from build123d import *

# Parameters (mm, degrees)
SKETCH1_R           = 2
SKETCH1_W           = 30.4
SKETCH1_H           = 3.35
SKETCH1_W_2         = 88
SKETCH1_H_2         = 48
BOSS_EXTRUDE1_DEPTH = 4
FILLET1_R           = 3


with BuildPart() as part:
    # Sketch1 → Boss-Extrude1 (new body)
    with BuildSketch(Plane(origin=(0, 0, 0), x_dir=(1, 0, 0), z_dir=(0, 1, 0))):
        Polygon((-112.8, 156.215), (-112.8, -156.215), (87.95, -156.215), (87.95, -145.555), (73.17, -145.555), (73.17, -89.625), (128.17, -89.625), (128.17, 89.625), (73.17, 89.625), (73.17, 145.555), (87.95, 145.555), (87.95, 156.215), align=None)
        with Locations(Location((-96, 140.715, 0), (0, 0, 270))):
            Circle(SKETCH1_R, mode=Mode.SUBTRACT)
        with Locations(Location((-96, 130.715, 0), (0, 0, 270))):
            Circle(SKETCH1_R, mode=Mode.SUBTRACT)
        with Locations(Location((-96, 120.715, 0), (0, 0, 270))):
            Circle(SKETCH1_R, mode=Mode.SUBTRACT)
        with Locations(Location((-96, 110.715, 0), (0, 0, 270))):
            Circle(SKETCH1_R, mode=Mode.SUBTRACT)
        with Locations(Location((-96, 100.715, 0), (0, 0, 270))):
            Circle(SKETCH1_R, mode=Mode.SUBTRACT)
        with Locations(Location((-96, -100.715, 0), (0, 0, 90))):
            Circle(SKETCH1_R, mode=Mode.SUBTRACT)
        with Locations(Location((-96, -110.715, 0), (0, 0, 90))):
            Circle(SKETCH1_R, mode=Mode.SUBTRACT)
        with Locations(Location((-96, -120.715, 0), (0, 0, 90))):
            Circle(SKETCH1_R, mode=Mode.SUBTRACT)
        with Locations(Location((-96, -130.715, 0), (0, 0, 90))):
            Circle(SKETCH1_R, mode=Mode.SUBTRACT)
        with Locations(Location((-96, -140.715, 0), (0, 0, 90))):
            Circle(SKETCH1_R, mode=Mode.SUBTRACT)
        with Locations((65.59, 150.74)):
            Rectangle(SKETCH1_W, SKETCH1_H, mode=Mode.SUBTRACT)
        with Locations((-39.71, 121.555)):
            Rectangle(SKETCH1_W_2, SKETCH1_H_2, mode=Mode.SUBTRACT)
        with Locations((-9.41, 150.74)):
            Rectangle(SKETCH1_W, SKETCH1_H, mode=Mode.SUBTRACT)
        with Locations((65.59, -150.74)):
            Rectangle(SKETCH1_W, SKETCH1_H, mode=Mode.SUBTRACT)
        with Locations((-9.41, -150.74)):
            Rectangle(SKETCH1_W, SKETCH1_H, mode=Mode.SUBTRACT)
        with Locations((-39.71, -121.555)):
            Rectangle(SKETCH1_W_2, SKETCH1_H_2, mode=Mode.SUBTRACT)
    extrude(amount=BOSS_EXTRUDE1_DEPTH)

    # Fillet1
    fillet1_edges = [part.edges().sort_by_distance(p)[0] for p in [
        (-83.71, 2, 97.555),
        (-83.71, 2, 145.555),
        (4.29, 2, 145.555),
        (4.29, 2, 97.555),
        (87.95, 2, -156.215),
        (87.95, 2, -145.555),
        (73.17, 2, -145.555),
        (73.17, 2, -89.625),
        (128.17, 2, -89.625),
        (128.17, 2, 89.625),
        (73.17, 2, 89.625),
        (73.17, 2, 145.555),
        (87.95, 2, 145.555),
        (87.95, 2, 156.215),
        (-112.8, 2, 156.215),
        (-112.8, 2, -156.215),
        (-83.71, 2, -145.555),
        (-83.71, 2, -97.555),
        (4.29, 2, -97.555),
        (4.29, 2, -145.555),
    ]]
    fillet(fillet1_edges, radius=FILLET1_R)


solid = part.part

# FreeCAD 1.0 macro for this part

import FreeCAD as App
import Part
import Sketcher
Q = App.Units.Quantity


def edges_at(feature, points):
    """Names of the edges that pass closest to the given points."""
    edges = feature.Shape.Edges
    near = lambda p: min(range(len(edges)), key=lambda i: edges[i].distToShape(Part.Vertex(*p))[0])
    return sorted({f"Edge{near(p) + 1}" for p in points})

doc = App.newDocument("Part")
body = doc.addObject("PartDesign::Body", "Body")

sketch1 = body.newObject("Sketcher::SketchObject", "Sketch")
sketch1.AttachmentSupport = (doc.getObject("XZ_Plane"), [""])
sketch1.MapMode = "FlatFace"
sketch1.addGeometry(Part.LineSegment(App.Vector(-112.8, -156.2, 0), App.Vector(-112.8, 156.2, 0)), False)
sketch1.addGeometry(Part.LineSegment(App.Vector(-112.8, 156.2, 0), App.Vector(88, 156.2, 0)), False)
sketch1.addGeometry(Part.LineSegment(App.Vector(88, 156.2, 0), App.Vector(88, 145.6, 0)), False)
sketch1.addGeometry(Part.LineSegment(App.Vector(88, 145.6, 0), App.Vector(73.2, 145.6, 0)), False)
sketch1.addGeometry(Part.LineSegment(App.Vector(73.2, 145.6, 0), App.Vector(73.2, 89.6, 0)), False)
sketch1.addGeometry(Part.LineSegment(App.Vector(73.2, 89.6, 0), App.Vector(128.2, 89.6, 0)), False)
sketch1.addGeometry(Part.LineSegment(App.Vector(128.2, 89.6, 0), App.Vector(128.2, -89.6, 0)), False)
sketch1.addGeometry(Part.LineSegment(App.Vector(128.2, -89.6, 0), App.Vector(73.2, -89.6, 0)), False)
sketch1.addGeometry(Part.LineSegment(App.Vector(73.2, -89.6, 0), App.Vector(73.2, -145.6, 0)), False)
sketch1.addGeometry(Part.LineSegment(App.Vector(73.2, -145.6, 0), App.Vector(88, -145.6, 0)), False)
sketch1.addGeometry(Part.LineSegment(App.Vector(88, -145.6, 0), App.Vector(88, -156.2, 0)), False)
sketch1.addGeometry(Part.LineSegment(App.Vector(88, -156.2, 0), App.Vector(-112.8, -156.2, 0)), False)
sketch1.addGeometry(Part.Circle(App.Vector(-96, 140.7, 0), App.Vector(0, 0, 1), 2), False)
sketch1.addGeometry(Part.Circle(App.Vector(-96, 130.7, 0), App.Vector(0, 0, 1), 2), False)
sketch1.addGeometry(Part.Circle(App.Vector(-96, 120.7, 0), App.Vector(0, 0, 1), 2), False)
sketch1.addGeometry(Part.Circle(App.Vector(-96, 110.7, 0), App.Vector(0, 0, 1), 2), False)
sketch1.addGeometry(Part.Circle(App.Vector(-96, 100.7, 0), App.Vector(0, 0, 1), 2), False)
sketch1.addGeometry(Part.LineSegment(App.Vector(4.3, 145.6, 0), App.Vector(-83.7, 145.6, 0)), False)
sketch1.addGeometry(Part.LineSegment(App.Vector(-83.7, 145.6, 0), App.Vector(-83.7, 97.6, 0)), False)
sketch1.addGeometry(Part.LineSegment(App.Vector(-83.7, 97.6, 0), App.Vector(4.3, 97.6, 0)), False)
sketch1.addGeometry(Part.LineSegment(App.Vector(4.3, 97.6, 0), App.Vector(4.3, 145.6, 0)), False)
sketch1.addGeometry(Part.LineSegment(App.Vector(5.8, 152.4, 0), App.Vector(-24.6, 152.4, 0)), False)
sketch1.addGeometry(Part.LineSegment(App.Vector(-24.6, 152.4, 0), App.Vector(-24.6, 149.1, 0)), False)
sketch1.addGeometry(Part.LineSegment(App.Vector(-24.6, 149.1, 0), App.Vector(5.8, 149.1, 0)), False)
sketch1.addGeometry(Part.LineSegment(App.Vector(5.8, 149.1, 0), App.Vector(5.8, 152.4, 0)), False)
sketch1.addGeometry(Part.LineSegment(App.Vector(80.8, 152.4, 0), App.Vector(50.4, 152.4, 0)), False)
sketch1.addGeometry(Part.LineSegment(App.Vector(50.4, 152.4, 0), App.Vector(50.4, 149.1, 0)), False)
sketch1.addGeometry(Part.LineSegment(App.Vector(50.4, 149.1, 0), App.Vector(80.8, 149.1, 0)), False)
sketch1.addGeometry(Part.LineSegment(App.Vector(80.8, 149.1, 0), App.Vector(80.8, 152.4, 0)), False)
sketch1.addGeometry(Part.Circle(App.Vector(-96, -100.7, 0), App.Vector(0, 0, 1), 2), False)
sketch1.addGeometry(Part.Circle(App.Vector(-96, -110.7, 0), App.Vector(0, 0, 1), 2), False)
sketch1.addGeometry(Part.Circle(App.Vector(-96, -120.7, 0), App.Vector(0, 0, 1), 2), False)
sketch1.addGeometry(Part.Circle(App.Vector(-96, -130.7, 0), App.Vector(0, 0, 1), 2), False)
sketch1.addGeometry(Part.Circle(App.Vector(-96, -140.7, 0), App.Vector(0, 0, 1), 2), False)
sketch1.addGeometry(Part.LineSegment(App.Vector(4.3, -97.6, 0), App.Vector(-83.7, -97.6, 0)), False)
sketch1.addGeometry(Part.LineSegment(App.Vector(-83.7, -97.6, 0), App.Vector(-83.7, -145.6, 0)), False)
sketch1.addGeometry(Part.LineSegment(App.Vector(-83.7, -145.6, 0), App.Vector(4.3, -145.6, 0)), False)
sketch1.addGeometry(Part.LineSegment(App.Vector(4.3, -145.6, 0), App.Vector(4.3, -97.6, 0)), False)
sketch1.addGeometry(Part.LineSegment(App.Vector(5.8, -149.1, 0), App.Vector(-24.6, -149.1, 0)), False)
sketch1.addGeometry(Part.LineSegment(App.Vector(-24.6, -149.1, 0), App.Vector(-24.6, -152.4, 0)), False)
sketch1.addGeometry(Part.LineSegment(App.Vector(-24.6, -152.4, 0), App.Vector(5.8, -152.4, 0)), False)
sketch1.addGeometry(Part.LineSegment(App.Vector(5.8, -152.4, 0), App.Vector(5.8, -149.1, 0)), False)
sketch1.addGeometry(Part.LineSegment(App.Vector(80.8, -149.1, 0), App.Vector(50.4, -149.1, 0)), False)
sketch1.addGeometry(Part.LineSegment(App.Vector(50.4, -149.1, 0), App.Vector(50.4, -152.4, 0)), False)
sketch1.addGeometry(Part.LineSegment(App.Vector(50.4, -152.4, 0), App.Vector(80.8, -152.4, 0)), False)
sketch1.addGeometry(Part.LineSegment(App.Vector(80.8, -152.4, 0), App.Vector(80.8, -149.1, 0)), False)
sketch1.addConstraint(Sketcher.Constraint("Coincident", 0, 2, 1, 1))
sketch1.addConstraint(Sketcher.Constraint("Coincident", 1, 2, 2, 1))
sketch1.addConstraint(Sketcher.Constraint("Coincident", 2, 2, 3, 1))
sketch1.addConstraint(Sketcher.Constraint("Coincident", 3, 2, 4, 1))
sketch1.addConstraint(Sketcher.Constraint("Coincident", 4, 2, 5, 1))
sketch1.addConstraint(Sketcher.Constraint("Coincident", 5, 2, 6, 1))
sketch1.addConstraint(Sketcher.Constraint("Coincident", 6, 2, 7, 1))
sketch1.addConstraint(Sketcher.Constraint("Coincident", 7, 2, 8, 1))
sketch1.addConstraint(Sketcher.Constraint("Coincident", 8, 2, 9, 1))
sketch1.addConstraint(Sketcher.Constraint("Coincident", 9, 2, 10, 1))
sketch1.addConstraint(Sketcher.Constraint("Coincident", 10, 2, 11, 1))
sketch1.addConstraint(Sketcher.Constraint("Coincident", 11, 2, 0, 1))
sketch1.addConstraint(Sketcher.Constraint("Coincident", 17, 2, 18, 1))
sketch1.addConstraint(Sketcher.Constraint("Coincident", 18, 2, 19, 1))
sketch1.addConstraint(Sketcher.Constraint("Coincident", 19, 2, 20, 1))
sketch1.addConstraint(Sketcher.Constraint("Coincident", 20, 2, 17, 1))
sketch1.addConstraint(Sketcher.Constraint("Coincident", 21, 2, 22, 1))
sketch1.addConstraint(Sketcher.Constraint("Coincident", 22, 2, 23, 1))
sketch1.addConstraint(Sketcher.Constraint("Coincident", 23, 2, 24, 1))
sketch1.addConstraint(Sketcher.Constraint("Coincident", 24, 2, 21, 1))
sketch1.addConstraint(Sketcher.Constraint("Coincident", 25, 2, 26, 1))
sketch1.addConstraint(Sketcher.Constraint("Coincident", 26, 2, 27, 1))
sketch1.addConstraint(Sketcher.Constraint("Coincident", 27, 2, 28, 1))
sketch1.addConstraint(Sketcher.Constraint("Coincident", 28, 2, 25, 1))
sketch1.addConstraint(Sketcher.Constraint("Coincident", 34, 2, 35, 1))
sketch1.addConstraint(Sketcher.Constraint("Coincident", 35, 2, 36, 1))
sketch1.addConstraint(Sketcher.Constraint("Coincident", 36, 2, 37, 1))
sketch1.addConstraint(Sketcher.Constraint("Coincident", 37, 2, 34, 1))
sketch1.addConstraint(Sketcher.Constraint("Coincident", 38, 2, 39, 1))
sketch1.addConstraint(Sketcher.Constraint("Coincident", 39, 2, 40, 1))
sketch1.addConstraint(Sketcher.Constraint("Coincident", 40, 2, 41, 1))
sketch1.addConstraint(Sketcher.Constraint("Coincident", 41, 2, 38, 1))
sketch1.addConstraint(Sketcher.Constraint("Coincident", 42, 2, 43, 1))
sketch1.addConstraint(Sketcher.Constraint("Coincident", 43, 2, 44, 1))
sketch1.addConstraint(Sketcher.Constraint("Coincident", 44, 2, 45, 1))
sketch1.addConstraint(Sketcher.Constraint("Coincident", 45, 2, 42, 1))
sketch1.addConstraint(Sketcher.Constraint("Vertical", 0))
sketch1.addConstraint(Sketcher.Constraint("Horizontal", 1))
sketch1.addConstraint(Sketcher.Constraint("Vertical", 2))
sketch1.addConstraint(Sketcher.Constraint("Horizontal", 3))
sketch1.addConstraint(Sketcher.Constraint("Vertical", 4))
sketch1.addConstraint(Sketcher.Constraint("Horizontal", 5))
sketch1.addConstraint(Sketcher.Constraint("Vertical", 6))
sketch1.addConstraint(Sketcher.Constraint("Horizontal", 7))
sketch1.addConstraint(Sketcher.Constraint("Vertical", 8))
sketch1.addConstraint(Sketcher.Constraint("Horizontal", 9))
sketch1.addConstraint(Sketcher.Constraint("Vertical", 10))
sketch1.addConstraint(Sketcher.Constraint("Horizontal", 11))
sketch1.addConstraint(Sketcher.Constraint("Horizontal", 17))
sketch1.addConstraint(Sketcher.Constraint("Vertical", 18))
sketch1.addConstraint(Sketcher.Constraint("Horizontal", 19))
sketch1.addConstraint(Sketcher.Constraint("Vertical", 20))
sketch1.addConstraint(Sketcher.Constraint("Horizontal", 21))
sketch1.addConstraint(Sketcher.Constraint("Vertical", 22))
sketch1.addConstraint(Sketcher.Constraint("Horizontal", 23))
sketch1.addConstraint(Sketcher.Constraint("Vertical", 24))
sketch1.addConstraint(Sketcher.Constraint("Horizontal", 25))
sketch1.addConstraint(Sketcher.Constraint("Vertical", 26))
sketch1.addConstraint(Sketcher.Constraint("Horizontal", 27))
sketch1.addConstraint(Sketcher.Constraint("Vertical", 28))
sketch1.addConstraint(Sketcher.Constraint("Horizontal", 34))
sketch1.addConstraint(Sketcher.Constraint("Vertical", 35))
sketch1.addConstraint(Sketcher.Constraint("Horizontal", 36))
sketch1.addConstraint(Sketcher.Constraint("Vertical", 37))
sketch1.addConstraint(Sketcher.Constraint("Horizontal", 38))
sketch1.addConstraint(Sketcher.Constraint("Vertical", 39))
sketch1.addConstraint(Sketcher.Constraint("Horizontal", 40))
sketch1.addConstraint(Sketcher.Constraint("Vertical", 41))
sketch1.addConstraint(Sketcher.Constraint("Horizontal", 42))
sketch1.addConstraint(Sketcher.Constraint("Vertical", 43))
sketch1.addConstraint(Sketcher.Constraint("Horizontal", 44))
sketch1.addConstraint(Sketcher.Constraint("Vertical", 45))
sketch1.addConstraint(Sketcher.Constraint("Equal", 12, 13))
sketch1.addConstraint(Sketcher.Constraint("Equal", 13, 14))
sketch1.addConstraint(Sketcher.Constraint("Equal", 14, 15))
sketch1.addConstraint(Sketcher.Constraint("Equal", 15, 16))
sketch1.addConstraint(Sketcher.Constraint("Equal", 16, 29))
sketch1.addConstraint(Sketcher.Constraint("Equal", 29, 30))
sketch1.addConstraint(Sketcher.Constraint("Equal", 30, 31))
sketch1.addConstraint(Sketcher.Constraint("Equal", 31, 32))
sketch1.addConstraint(Sketcher.Constraint("Equal", 32, 33))
sketch1.addConstraint(Sketcher.Constraint("Symmetric", 16, 3, 29, 3, -1))
sketch1.addConstraint(Sketcher.Constraint("Symmetric", 15, 3, 30, 3, -1))
sketch1.addConstraint(Sketcher.Constraint("Symmetric", 14, 3, 31, 3, -1))
sketch1.addConstraint(Sketcher.Constraint("Symmetric", 13, 3, 32, 3, -1))
sketch1.addConstraint(Sketcher.Constraint("Symmetric", 12, 3, 33, 3, -1))
sketch1.addConstraint(Sketcher.Constraint("Symmetric", 4, 2, 7, 2, -1))
sketch1.addConstraint(Sketcher.Constraint("Symmetric", 2, 2, 9, 2, -1))
sketch1.addConstraint(Sketcher.Constraint("Symmetric", 18, 2, 34, 2, -1))
sketch1.addConstraint(Sketcher.Constraint("Symmetric", 20, 2, 36, 2, -1))
sketch1.addConstraint(Sketcher.Constraint("Symmetric", 22, 2, 38, 2, -1))
sketch1.addConstraint(Sketcher.Constraint("Symmetric", 24, 2, 40, 2, -1))
sketch1.addConstraint(Sketcher.Constraint("Symmetric", 26, 2, 42, 2, -1))
sketch1.addConstraint(Sketcher.Constraint("Symmetric", 28, 2, 44, 2, -1))
sketch1.addConstraint(Sketcher.Constraint("Horizontal", 3, 2, 17, 2))
sketch1.addConstraint(Sketcher.Constraint("Horizontal", 24, 2, 25, 2))
sketch1.addConstraint(Sketcher.Constraint("Horizontal", 23, 2, 26, 2))
sketch1.addConstraint(Sketcher.Constraint("Vertical", 12, 3, 13, 3))
sketch1.addConstraint(Sketcher.Constraint("Vertical", 13, 3, 14, 3))
sketch1.addConstraint(Sketcher.Constraint("Vertical", 14, 3, 15, 3))
sketch1.addConstraint(Sketcher.Constraint("Vertical", 15, 3, 16, 3))
sketch1.addConstraint(Sketcher.Constraint("Equal", 23, 25))
sketch1.addConstraint(Sketcher.Constraint("Equal", 2, 10))
sketch1.addConstraint(Sketcher.Constraint("Diameter", 12, Q("4 mm")))
sketch1.addConstraint(Sketcher.Constraint("DistanceX", 5, 1, 5, 2, Q("55 mm")))
sketch1.addConstraint(Sketcher.Constraint("DistanceX", 17, 2, 17, 1, Q("88 mm")))
sketch1.addConstraint(Sketcher.Constraint("DistanceY", 18, 2, 18, 1, Q("48 mm")))
sketch1.addConstraint(Sketcher.Constraint("DistanceX", 21, 2, 21, 1, Q("30.4 mm")))
sketch1.addConstraint(Sketcher.Constraint("DistanceX", 12, 3, -1, 1, Q("96 mm")))
sketch1.addConstraint(Sketcher.Constraint("DistanceY", 13, 3, 12, 3, Q("10 mm")))
sketch1.addConstraint(Sketcher.Constraint("DistanceY", 14, 3, 13, 3, Q("10 mm")))
sketch1.addConstraint(Sketcher.Constraint("DistanceY", 15, 3, 14, 3, Q("10 mm")))
sketch1.addConstraint(Sketcher.Constraint("DistanceY", 16, 3, 15, 3, Q("10 mm")))
sketch1.addConstraint(Sketcher.Constraint("DistanceX", 1, 1, 1, 2, Q("200.75 mm")))
sketch1.addConstraint(Sketcher.Constraint("DistanceX", 3, 2, 3, 1, Q("14.78 mm")))
sketch1.addConstraint(Sketcher.Constraint("DistanceY", 0, 1, 0, 2, Q("312.43 mm")))
sketch1.addConstraint(Sketcher.Constraint("DistanceY", 2, 2, 2, 1, Q("10.66 mm")))
sketch1.addConstraint(Sketcher.Constraint("DistanceY", 4, 2, 4, 1, Q("55.93 mm")))
sketch1.addConstraint(Sketcher.Constraint("DistanceY", 22, 2, 22, 1, Q("3.35 mm")))
sketch1.addConstraint(Sketcher.Constraint("DistanceX", 0, 2, -1, 1, Q("112.8 mm")))
sketch1.addConstraint(Sketcher.Constraint("DistanceY", 12, 3, 0, 2, Q("15.5 mm")))
sketch1.addConstraint(Sketcher.Constraint("DistanceX", 21, 2, 20, 2, Q("28.9 mm")))
sketch1.addConstraint(Sketcher.Constraint("DistanceY", 12, 3, 21, 2, Q("11.7 mm")))
sketch1.addConstraint(Sketcher.Constraint("DistanceX", 24, 2, 25, 2, Q("44.6 mm")))
sketch1.addConstraint(Sketcher.Constraint("DistanceX", 17, 2, -1, 1, Q("83.71 mm")))
pad1 = body.newObject("PartDesign::Pad", "Pad")
pad1.Profile = sketch1
pad1.Length = 4
pad1.Reversed = True
doc.recompute()

fillet = body.newObject("PartDesign::Fillet", "Fillet")
fillet.Base = (pad1, edges_at(pad1, [
    (-83.71, 2, 97.555),
    (-83.71, 2, 145.555),
    (4.29, 2, 145.555),
    (4.29, 2, 97.555),
    (87.95, 2, -156.215),
    (87.95, 2, -145.555),
    (73.17, 2, -145.555),
    (73.17, 2, -89.625),
    (128.17, 2, -89.625),
    (128.17, 2, 89.625),
    (73.17, 2, 89.625),
    (73.17, 2, 145.555),
    (87.95, 2, 145.555),
    (87.95, 2, 156.215),
    (-112.8, 2, 156.215),
    (-112.8, 2, -156.215),
    (-83.71, 2, -145.555),
    (-83.71, 2, -97.555),
    (4.29, 2, -97.555),
    (4.29, 2, -145.555),
]))
fillet.Radius = 3

doc.recompute()
